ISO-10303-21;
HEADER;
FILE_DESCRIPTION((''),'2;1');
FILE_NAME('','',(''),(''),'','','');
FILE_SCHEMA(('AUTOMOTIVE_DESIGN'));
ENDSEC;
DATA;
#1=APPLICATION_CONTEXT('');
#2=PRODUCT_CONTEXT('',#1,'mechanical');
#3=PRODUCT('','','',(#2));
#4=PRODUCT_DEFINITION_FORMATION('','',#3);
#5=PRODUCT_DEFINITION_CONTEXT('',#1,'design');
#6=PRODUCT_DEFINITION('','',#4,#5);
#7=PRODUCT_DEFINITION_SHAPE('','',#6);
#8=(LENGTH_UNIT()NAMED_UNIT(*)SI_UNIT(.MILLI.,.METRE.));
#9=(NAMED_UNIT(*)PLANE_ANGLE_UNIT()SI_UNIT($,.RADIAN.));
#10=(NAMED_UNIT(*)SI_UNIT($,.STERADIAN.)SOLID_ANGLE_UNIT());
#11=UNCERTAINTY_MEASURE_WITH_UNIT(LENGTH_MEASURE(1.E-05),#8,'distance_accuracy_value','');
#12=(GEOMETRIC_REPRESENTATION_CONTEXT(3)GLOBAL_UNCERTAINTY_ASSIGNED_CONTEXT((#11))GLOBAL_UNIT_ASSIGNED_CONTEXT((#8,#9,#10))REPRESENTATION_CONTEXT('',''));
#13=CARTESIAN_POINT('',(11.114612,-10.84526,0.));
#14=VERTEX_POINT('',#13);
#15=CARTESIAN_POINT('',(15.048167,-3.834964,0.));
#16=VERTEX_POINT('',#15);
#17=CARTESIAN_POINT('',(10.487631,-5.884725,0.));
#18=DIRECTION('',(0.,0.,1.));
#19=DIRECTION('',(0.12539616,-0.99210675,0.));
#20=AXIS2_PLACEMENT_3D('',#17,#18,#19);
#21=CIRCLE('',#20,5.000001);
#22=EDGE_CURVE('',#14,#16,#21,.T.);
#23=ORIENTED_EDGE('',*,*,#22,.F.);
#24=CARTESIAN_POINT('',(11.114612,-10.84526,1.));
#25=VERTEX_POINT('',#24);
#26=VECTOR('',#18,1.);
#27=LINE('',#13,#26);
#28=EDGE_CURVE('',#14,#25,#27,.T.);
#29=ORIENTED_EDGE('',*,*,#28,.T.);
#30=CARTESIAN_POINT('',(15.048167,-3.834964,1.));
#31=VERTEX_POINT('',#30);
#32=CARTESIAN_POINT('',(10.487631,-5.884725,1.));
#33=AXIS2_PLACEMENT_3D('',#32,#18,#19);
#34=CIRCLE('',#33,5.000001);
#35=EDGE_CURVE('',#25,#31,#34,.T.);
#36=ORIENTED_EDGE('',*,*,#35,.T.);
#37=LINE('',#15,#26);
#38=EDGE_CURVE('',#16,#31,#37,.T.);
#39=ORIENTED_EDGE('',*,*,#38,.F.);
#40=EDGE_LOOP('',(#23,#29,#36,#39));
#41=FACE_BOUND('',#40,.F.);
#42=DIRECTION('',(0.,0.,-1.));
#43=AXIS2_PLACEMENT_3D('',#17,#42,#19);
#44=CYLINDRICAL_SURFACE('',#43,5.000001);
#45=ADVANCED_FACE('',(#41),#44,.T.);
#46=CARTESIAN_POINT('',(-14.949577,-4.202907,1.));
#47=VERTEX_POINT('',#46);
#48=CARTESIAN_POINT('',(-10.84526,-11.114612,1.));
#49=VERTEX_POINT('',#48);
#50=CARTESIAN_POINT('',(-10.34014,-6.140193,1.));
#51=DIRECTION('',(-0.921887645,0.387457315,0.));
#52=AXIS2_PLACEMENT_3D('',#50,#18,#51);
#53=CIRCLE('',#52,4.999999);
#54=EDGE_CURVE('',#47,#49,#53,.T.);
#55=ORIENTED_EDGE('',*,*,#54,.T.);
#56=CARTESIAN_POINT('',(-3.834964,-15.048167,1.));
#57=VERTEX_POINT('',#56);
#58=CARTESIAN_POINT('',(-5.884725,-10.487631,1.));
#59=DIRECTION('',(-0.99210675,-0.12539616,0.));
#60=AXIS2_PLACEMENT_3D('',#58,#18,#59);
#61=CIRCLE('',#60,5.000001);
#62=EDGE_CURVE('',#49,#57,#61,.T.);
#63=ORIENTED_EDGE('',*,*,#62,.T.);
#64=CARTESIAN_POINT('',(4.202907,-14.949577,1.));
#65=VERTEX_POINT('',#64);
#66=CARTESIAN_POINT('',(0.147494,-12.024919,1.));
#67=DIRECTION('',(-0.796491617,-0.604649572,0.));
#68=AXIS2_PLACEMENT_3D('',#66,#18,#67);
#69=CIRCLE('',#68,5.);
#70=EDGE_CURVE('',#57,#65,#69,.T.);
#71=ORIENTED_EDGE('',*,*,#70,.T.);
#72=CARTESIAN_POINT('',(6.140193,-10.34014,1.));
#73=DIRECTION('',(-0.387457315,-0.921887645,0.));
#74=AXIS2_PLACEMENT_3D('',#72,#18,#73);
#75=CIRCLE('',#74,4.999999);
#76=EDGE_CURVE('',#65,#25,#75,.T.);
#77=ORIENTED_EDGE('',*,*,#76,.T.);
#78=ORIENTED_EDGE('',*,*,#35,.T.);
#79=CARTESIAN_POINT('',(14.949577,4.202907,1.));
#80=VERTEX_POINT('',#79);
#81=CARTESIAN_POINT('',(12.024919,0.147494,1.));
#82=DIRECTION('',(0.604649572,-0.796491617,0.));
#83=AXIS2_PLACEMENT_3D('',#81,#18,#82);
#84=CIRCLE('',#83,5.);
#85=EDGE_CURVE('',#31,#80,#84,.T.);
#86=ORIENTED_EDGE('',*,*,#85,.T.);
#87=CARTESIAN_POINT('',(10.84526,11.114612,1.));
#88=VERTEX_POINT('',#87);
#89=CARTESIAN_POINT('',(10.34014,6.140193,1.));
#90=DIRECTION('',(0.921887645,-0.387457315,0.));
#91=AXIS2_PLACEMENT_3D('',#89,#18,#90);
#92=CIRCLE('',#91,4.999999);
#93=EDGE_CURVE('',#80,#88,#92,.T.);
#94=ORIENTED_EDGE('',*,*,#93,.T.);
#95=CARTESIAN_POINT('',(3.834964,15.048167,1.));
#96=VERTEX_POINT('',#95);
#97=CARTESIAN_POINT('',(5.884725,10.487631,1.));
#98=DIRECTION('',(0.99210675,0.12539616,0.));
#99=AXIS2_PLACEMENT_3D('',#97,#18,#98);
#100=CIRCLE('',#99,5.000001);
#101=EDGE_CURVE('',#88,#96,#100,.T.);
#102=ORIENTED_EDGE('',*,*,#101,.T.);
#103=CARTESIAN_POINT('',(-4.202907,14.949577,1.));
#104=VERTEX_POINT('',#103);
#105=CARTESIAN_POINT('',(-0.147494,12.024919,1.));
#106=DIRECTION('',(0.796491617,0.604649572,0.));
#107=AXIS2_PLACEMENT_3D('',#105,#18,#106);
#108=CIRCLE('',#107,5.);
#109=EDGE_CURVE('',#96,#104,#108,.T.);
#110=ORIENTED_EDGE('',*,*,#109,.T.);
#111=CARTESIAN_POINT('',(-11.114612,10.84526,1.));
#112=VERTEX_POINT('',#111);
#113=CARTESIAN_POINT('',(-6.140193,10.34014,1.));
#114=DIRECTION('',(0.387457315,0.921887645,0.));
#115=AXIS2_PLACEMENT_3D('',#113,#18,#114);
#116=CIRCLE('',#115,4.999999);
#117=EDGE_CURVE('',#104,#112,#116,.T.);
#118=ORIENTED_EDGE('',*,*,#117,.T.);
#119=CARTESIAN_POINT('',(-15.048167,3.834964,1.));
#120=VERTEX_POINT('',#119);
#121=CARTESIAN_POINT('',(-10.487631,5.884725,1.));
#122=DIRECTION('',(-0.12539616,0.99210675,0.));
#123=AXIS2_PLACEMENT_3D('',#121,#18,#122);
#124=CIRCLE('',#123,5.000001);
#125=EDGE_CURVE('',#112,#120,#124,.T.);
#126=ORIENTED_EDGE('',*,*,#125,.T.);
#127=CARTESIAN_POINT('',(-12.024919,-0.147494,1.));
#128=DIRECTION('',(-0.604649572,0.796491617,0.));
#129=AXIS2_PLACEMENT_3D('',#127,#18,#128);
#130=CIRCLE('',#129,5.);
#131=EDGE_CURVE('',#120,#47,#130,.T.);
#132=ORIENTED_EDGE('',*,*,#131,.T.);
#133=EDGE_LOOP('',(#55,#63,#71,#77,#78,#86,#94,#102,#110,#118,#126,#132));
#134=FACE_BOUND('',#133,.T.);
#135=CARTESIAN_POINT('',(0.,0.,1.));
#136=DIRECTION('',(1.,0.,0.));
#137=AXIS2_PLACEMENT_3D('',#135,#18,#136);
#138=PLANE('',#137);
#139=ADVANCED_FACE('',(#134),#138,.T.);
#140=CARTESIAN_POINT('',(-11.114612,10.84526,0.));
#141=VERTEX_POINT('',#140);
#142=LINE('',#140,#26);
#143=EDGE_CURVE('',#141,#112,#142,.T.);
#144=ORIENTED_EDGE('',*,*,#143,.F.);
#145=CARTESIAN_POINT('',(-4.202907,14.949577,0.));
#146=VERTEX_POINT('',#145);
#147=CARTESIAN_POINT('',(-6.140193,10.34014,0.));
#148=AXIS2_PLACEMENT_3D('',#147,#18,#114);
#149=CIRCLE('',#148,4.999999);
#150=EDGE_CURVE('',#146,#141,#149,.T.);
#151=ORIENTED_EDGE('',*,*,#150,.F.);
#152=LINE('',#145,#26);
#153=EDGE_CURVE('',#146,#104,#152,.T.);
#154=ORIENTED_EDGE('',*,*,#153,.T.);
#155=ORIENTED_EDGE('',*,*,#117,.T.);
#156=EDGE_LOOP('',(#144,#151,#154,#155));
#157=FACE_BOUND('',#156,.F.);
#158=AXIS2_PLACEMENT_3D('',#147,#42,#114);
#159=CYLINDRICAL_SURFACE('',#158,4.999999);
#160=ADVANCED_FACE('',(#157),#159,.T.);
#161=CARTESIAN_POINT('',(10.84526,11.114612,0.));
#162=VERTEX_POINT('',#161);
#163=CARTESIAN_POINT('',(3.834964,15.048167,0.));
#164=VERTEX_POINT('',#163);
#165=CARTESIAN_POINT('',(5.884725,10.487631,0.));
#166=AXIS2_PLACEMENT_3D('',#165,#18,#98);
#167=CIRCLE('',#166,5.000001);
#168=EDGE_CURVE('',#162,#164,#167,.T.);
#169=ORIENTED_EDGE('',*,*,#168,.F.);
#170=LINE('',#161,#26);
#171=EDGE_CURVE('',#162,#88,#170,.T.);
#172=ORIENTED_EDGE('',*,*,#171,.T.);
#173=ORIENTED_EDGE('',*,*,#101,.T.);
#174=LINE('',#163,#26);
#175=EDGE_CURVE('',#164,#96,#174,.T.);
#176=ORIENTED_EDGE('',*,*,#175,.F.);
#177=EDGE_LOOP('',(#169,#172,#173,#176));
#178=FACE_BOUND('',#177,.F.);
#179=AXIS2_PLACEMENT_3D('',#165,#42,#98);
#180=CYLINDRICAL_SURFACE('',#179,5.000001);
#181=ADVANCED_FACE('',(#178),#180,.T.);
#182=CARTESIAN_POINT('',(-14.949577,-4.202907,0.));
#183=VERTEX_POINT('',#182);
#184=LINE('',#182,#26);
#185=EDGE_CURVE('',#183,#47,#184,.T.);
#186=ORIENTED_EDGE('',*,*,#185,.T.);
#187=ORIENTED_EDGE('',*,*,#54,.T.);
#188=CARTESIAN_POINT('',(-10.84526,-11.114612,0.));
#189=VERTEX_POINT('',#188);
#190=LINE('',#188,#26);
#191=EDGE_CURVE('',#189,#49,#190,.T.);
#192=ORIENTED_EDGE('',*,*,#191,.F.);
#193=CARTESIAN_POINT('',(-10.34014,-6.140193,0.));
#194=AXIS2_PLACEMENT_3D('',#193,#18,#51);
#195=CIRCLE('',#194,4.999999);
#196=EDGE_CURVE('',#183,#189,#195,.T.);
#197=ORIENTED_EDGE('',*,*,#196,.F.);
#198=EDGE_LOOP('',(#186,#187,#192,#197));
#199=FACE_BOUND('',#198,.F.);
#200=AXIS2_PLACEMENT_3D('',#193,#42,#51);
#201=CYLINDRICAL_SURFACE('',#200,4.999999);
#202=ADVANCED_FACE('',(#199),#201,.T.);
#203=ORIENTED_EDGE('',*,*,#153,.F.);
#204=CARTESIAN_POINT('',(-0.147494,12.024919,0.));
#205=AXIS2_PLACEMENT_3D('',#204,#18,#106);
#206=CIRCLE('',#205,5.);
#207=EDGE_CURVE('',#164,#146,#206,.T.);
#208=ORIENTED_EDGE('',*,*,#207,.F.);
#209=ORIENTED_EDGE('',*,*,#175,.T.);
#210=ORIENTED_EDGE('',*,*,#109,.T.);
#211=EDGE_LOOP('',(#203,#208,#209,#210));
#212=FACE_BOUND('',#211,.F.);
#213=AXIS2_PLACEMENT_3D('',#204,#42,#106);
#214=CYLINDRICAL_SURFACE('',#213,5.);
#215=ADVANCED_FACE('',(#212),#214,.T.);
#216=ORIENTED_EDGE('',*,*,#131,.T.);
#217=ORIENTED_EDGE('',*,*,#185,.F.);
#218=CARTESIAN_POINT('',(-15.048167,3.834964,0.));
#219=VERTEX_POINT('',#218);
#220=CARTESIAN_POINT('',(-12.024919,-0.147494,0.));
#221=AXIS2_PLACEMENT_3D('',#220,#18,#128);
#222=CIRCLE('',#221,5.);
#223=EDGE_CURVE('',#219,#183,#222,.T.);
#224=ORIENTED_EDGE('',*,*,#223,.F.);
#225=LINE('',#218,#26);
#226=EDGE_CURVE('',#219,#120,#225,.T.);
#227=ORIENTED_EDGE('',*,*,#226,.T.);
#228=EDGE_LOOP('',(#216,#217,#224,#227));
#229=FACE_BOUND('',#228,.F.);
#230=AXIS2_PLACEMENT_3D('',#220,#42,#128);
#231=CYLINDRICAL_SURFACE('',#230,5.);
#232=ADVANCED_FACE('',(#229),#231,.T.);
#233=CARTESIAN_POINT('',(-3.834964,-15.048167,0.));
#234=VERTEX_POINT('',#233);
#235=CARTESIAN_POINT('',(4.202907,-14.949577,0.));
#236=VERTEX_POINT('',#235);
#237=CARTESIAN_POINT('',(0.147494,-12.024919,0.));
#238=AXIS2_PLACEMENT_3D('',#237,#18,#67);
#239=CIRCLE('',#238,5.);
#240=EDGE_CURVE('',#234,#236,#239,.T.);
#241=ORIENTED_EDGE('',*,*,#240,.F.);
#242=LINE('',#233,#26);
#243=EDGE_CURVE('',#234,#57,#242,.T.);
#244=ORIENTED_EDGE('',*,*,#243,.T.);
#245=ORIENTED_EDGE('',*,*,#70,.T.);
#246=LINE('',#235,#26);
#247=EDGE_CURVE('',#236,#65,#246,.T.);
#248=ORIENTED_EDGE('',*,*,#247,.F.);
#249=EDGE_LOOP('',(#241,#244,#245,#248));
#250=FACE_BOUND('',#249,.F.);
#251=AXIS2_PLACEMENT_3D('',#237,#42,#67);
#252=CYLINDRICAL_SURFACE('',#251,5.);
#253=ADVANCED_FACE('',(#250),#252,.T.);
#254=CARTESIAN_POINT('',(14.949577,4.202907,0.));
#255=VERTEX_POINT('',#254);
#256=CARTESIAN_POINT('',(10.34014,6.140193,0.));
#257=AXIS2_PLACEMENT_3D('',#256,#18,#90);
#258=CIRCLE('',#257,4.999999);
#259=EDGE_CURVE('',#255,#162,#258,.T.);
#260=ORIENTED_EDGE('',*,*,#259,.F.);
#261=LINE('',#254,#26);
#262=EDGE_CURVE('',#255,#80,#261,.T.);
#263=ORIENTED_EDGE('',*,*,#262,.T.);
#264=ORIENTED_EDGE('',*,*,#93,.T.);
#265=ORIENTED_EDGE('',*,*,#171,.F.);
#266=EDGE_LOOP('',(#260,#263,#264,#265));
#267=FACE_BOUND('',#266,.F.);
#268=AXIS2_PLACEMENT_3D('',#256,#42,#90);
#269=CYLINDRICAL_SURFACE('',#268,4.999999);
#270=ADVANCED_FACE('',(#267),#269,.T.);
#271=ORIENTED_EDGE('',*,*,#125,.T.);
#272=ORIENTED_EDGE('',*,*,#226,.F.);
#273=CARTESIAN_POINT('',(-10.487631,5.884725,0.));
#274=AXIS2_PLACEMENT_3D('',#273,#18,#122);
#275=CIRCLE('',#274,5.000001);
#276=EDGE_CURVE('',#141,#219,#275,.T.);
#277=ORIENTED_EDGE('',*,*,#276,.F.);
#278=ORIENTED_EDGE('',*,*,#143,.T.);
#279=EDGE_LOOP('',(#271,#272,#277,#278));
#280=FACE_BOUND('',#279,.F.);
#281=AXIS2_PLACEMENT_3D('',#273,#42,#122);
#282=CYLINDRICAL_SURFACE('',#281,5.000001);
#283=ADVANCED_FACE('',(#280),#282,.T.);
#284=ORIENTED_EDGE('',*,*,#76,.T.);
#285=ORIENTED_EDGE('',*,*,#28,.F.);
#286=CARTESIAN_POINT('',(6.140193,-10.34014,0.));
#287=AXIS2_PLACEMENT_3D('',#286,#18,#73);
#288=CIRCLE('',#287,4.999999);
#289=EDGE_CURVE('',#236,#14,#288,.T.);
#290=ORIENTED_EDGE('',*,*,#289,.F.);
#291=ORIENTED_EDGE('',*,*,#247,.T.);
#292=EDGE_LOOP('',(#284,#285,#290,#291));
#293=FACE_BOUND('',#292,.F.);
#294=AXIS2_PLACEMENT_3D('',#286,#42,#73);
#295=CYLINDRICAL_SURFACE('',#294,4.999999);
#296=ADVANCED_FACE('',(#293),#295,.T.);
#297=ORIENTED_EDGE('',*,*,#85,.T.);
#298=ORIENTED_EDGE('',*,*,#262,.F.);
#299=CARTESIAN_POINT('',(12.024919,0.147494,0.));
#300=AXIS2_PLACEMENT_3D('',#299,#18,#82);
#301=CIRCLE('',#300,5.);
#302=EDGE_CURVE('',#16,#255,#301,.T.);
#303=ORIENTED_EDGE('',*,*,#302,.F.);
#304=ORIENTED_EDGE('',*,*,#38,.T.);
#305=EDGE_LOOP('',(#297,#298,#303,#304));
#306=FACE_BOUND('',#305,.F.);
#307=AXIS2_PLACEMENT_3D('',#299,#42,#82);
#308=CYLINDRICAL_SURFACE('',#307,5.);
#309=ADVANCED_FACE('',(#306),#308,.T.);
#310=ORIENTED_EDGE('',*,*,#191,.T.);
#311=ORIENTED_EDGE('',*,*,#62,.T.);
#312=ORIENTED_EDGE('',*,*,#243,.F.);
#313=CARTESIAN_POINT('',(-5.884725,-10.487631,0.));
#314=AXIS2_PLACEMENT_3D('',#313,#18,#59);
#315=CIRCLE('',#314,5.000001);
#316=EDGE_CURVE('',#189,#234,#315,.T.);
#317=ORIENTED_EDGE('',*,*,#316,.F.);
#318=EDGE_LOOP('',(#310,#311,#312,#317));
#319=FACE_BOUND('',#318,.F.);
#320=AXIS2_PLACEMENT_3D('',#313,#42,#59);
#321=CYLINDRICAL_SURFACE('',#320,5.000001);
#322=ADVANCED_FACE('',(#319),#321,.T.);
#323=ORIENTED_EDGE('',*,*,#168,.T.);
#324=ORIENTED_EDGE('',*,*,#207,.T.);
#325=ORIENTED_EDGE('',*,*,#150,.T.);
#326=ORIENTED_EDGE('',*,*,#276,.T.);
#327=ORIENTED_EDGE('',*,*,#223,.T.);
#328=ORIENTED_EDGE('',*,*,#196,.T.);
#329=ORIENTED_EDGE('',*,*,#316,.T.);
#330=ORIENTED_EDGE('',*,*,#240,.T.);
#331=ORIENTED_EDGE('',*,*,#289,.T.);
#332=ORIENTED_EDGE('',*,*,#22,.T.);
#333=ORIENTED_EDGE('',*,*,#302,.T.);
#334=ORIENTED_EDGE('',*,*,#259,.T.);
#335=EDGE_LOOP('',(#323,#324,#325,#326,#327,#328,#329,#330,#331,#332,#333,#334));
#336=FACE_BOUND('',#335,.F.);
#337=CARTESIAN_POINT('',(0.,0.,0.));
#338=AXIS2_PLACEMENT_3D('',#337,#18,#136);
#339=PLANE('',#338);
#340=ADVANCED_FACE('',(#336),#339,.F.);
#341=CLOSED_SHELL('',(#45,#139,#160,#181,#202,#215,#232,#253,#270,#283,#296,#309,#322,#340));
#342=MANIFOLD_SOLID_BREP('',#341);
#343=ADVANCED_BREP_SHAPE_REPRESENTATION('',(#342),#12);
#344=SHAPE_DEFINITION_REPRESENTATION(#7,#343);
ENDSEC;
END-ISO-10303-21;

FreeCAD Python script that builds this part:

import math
import FreeCAD as App
import Part
import Sketcher

V = App.Vector

doc = App.newDocument("Part")
body = doc.addObject("PartDesign::Body", "Body")

sketch1 = doc.addObject("Sketcher::SketchObject", "Sketch")
body.addObject(sketch1)
sketch1.AttachmentSupport = (doc.XY_Plane, [""])
sketch1.MapMode = "FlatFace"
sketch1.addGeometry([
    Part.ArcOfCircle(Part.Circle(V(10.3, 6.1, 0), V(0, 0, 1), 5), math.radians(-23), math.radians(84)),
    Part.ArcOfCircle(Part.Circle(V(5.9, 10.5, 0), V(0, 0, 1), 5), math.radians(7), math.radians(114)),
    Part.ArcOfCircle(Part.Circle(V(-0.1, 12, 0), V(0, 0, 1), 5), math.radians(37), math.radians(144)),
    Part.ArcOfCircle(Part.Circle(V(-6.1, 10.3, 0), V(0, 0, 1), 5), math.radians(67), math.radians(174)),
    Part.ArcOfCircle(Part.Circle(V(-10.5, 5.9, 0), V(0, 0, 1), 5), math.radians(97), math.radians(204)),
    Part.ArcOfCircle(Part.Circle(V(-12, -0.1, 0), V(0, 0, 1), 5), math.radians(127), math.radians(234)),
    Part.ArcOfCircle(Part.Circle(V(-10.3, -6.1, 0), V(0, 0, 1), 5), math.radians(157), math.radians(264)),
    Part.ArcOfCircle(Part.Circle(V(-5.9, -10.5, 0), V(0, 0, 1), 5), math.radians(-173), math.radians(-66)),
    Part.ArcOfCircle(Part.Circle(V(0.1, -12, 0), V(0, 0, 1), 5), math.radians(-143), math.radians(-36)),
    Part.ArcOfCircle(Part.Circle(V(6.1, -10.3, 0), V(0, 0, 1), 5), math.radians(-113), math.radians(-6)),
    Part.ArcOfCircle(Part.Circle(V(10.5, -5.9, 0), V(0, 0, 1), 5), math.radians(-83), math.radians(24)),
    Part.ArcOfCircle(Part.Circle(V(12, 0.1, 0), V(0, 0, 1), 5), math.radians(-53), math.radians(54)),
], False)
sketch1.addConstraint([
    Sketcher.Constraint("Coincident", 0, 2, 1, 1),
    Sketcher.Constraint("Coincident", 1, 2, 2, 1),
    Sketcher.Constraint("Coincident", 2, 2, 3, 1),
    Sketcher.Constraint("Coincident", 3, 2, 4, 1),
    Sketcher.Constraint("Coincident", 4, 2, 5, 1),
    Sketcher.Constraint("Coincident", 5, 2, 6, 1),
    Sketcher.Constraint("Coincident", 6, 2, 7, 1),
    Sketcher.Constraint("Coincident", 7, 2, 8, 1),
    Sketcher.Constraint("Coincident", 8, 2, 9, 1),
    Sketcher.Constraint("Coincident", 9, 2, 10, 1),
    Sketcher.Constraint("Coincident", 10, 2, 11, 1),
    Sketcher.Constraint("Coincident", 11, 2, 0, 1),
    Sketcher.Constraint("Equal", 1, 2),
    Sketcher.Constraint("Equal", 2, 3),
    Sketcher.Constraint("Equal", 2, 4),
    Sketcher.Constraint("Equal", 4, 5),
    Sketcher.Constraint("Equal", 5, 6),
    Sketcher.Constraint("Equal", 5, 7),
    Sketcher.Constraint("Equal", 7, 8),
    Sketcher.Constraint("Equal", 8, 9),
    Sketcher.Constraint("Equal", 8, 10),
    Sketcher.Constraint("Equal", 10, 11),
    Sketcher.Constraint("Symmetric", 0, 3, 6, 3, -1, 1),
    Sketcher.Constraint("Symmetric", 1, 3, 7, 3, -1, 1),
    Sketcher.Constraint("Symmetric", 2, 3, 8, 3, -1, 1),
    Sketcher.Constraint("Symmetric", 3, 3, 9, 3, -1, 1),
    Sketcher.Constraint("Symmetric", 4, 3, 10, 3, -1, 1),
    Sketcher.Constraint("Symmetric", 5, 3, 11, 3, -1, 1),
    Sketcher.Constraint("Radius", 0, 4.999999),
    Sketcher.Constraint("Radius", 1, 5.000001),
    Sketcher.Constraint("DistanceX", 3, 3, 2, 3, 5.992699),
    Sketcher.Constraint("DistanceY", 6, 3, 5, 3, 5.992699),
    Sketcher.Constraint("DistanceX", -1, 1, 0, 3, 10.34014),
    Sketcher.Constraint("DistanceY", -1, 1, 1, 3, 10.487631),
    Sketcher.Constraint("DistanceY", -1, 1, 2, 3, 12.024919),
    Sketcher.Constraint("DistanceY", -1, 1, 3, 3, 10.34014),
    Sketcher.Constraint("DistanceX", 4, 3, -1, 1, 10.487631),
    Sketcher.Constraint("DistanceX", 5, 3, -1, 1, 12.024919),
    Sketcher.Constraint("DistanceX", -1, 1, 0, 2, 10.84526),
    Sketcher.Constraint("DistanceY", -1, 1, 0, 2, 11.114612),
    Sketcher.Constraint("DistanceX", 3, 2, -1, 1, 11.114612),
    Sketcher.Constraint("DistanceY", -1, 1, 3, 2, 10.84526),
])
pad1 = doc.addObject("PartDesign::Pad", "Pad")
body.addObject(pad1)
pad1.Profile = sketch1
pad1.Length = 1

doc.recompute()
